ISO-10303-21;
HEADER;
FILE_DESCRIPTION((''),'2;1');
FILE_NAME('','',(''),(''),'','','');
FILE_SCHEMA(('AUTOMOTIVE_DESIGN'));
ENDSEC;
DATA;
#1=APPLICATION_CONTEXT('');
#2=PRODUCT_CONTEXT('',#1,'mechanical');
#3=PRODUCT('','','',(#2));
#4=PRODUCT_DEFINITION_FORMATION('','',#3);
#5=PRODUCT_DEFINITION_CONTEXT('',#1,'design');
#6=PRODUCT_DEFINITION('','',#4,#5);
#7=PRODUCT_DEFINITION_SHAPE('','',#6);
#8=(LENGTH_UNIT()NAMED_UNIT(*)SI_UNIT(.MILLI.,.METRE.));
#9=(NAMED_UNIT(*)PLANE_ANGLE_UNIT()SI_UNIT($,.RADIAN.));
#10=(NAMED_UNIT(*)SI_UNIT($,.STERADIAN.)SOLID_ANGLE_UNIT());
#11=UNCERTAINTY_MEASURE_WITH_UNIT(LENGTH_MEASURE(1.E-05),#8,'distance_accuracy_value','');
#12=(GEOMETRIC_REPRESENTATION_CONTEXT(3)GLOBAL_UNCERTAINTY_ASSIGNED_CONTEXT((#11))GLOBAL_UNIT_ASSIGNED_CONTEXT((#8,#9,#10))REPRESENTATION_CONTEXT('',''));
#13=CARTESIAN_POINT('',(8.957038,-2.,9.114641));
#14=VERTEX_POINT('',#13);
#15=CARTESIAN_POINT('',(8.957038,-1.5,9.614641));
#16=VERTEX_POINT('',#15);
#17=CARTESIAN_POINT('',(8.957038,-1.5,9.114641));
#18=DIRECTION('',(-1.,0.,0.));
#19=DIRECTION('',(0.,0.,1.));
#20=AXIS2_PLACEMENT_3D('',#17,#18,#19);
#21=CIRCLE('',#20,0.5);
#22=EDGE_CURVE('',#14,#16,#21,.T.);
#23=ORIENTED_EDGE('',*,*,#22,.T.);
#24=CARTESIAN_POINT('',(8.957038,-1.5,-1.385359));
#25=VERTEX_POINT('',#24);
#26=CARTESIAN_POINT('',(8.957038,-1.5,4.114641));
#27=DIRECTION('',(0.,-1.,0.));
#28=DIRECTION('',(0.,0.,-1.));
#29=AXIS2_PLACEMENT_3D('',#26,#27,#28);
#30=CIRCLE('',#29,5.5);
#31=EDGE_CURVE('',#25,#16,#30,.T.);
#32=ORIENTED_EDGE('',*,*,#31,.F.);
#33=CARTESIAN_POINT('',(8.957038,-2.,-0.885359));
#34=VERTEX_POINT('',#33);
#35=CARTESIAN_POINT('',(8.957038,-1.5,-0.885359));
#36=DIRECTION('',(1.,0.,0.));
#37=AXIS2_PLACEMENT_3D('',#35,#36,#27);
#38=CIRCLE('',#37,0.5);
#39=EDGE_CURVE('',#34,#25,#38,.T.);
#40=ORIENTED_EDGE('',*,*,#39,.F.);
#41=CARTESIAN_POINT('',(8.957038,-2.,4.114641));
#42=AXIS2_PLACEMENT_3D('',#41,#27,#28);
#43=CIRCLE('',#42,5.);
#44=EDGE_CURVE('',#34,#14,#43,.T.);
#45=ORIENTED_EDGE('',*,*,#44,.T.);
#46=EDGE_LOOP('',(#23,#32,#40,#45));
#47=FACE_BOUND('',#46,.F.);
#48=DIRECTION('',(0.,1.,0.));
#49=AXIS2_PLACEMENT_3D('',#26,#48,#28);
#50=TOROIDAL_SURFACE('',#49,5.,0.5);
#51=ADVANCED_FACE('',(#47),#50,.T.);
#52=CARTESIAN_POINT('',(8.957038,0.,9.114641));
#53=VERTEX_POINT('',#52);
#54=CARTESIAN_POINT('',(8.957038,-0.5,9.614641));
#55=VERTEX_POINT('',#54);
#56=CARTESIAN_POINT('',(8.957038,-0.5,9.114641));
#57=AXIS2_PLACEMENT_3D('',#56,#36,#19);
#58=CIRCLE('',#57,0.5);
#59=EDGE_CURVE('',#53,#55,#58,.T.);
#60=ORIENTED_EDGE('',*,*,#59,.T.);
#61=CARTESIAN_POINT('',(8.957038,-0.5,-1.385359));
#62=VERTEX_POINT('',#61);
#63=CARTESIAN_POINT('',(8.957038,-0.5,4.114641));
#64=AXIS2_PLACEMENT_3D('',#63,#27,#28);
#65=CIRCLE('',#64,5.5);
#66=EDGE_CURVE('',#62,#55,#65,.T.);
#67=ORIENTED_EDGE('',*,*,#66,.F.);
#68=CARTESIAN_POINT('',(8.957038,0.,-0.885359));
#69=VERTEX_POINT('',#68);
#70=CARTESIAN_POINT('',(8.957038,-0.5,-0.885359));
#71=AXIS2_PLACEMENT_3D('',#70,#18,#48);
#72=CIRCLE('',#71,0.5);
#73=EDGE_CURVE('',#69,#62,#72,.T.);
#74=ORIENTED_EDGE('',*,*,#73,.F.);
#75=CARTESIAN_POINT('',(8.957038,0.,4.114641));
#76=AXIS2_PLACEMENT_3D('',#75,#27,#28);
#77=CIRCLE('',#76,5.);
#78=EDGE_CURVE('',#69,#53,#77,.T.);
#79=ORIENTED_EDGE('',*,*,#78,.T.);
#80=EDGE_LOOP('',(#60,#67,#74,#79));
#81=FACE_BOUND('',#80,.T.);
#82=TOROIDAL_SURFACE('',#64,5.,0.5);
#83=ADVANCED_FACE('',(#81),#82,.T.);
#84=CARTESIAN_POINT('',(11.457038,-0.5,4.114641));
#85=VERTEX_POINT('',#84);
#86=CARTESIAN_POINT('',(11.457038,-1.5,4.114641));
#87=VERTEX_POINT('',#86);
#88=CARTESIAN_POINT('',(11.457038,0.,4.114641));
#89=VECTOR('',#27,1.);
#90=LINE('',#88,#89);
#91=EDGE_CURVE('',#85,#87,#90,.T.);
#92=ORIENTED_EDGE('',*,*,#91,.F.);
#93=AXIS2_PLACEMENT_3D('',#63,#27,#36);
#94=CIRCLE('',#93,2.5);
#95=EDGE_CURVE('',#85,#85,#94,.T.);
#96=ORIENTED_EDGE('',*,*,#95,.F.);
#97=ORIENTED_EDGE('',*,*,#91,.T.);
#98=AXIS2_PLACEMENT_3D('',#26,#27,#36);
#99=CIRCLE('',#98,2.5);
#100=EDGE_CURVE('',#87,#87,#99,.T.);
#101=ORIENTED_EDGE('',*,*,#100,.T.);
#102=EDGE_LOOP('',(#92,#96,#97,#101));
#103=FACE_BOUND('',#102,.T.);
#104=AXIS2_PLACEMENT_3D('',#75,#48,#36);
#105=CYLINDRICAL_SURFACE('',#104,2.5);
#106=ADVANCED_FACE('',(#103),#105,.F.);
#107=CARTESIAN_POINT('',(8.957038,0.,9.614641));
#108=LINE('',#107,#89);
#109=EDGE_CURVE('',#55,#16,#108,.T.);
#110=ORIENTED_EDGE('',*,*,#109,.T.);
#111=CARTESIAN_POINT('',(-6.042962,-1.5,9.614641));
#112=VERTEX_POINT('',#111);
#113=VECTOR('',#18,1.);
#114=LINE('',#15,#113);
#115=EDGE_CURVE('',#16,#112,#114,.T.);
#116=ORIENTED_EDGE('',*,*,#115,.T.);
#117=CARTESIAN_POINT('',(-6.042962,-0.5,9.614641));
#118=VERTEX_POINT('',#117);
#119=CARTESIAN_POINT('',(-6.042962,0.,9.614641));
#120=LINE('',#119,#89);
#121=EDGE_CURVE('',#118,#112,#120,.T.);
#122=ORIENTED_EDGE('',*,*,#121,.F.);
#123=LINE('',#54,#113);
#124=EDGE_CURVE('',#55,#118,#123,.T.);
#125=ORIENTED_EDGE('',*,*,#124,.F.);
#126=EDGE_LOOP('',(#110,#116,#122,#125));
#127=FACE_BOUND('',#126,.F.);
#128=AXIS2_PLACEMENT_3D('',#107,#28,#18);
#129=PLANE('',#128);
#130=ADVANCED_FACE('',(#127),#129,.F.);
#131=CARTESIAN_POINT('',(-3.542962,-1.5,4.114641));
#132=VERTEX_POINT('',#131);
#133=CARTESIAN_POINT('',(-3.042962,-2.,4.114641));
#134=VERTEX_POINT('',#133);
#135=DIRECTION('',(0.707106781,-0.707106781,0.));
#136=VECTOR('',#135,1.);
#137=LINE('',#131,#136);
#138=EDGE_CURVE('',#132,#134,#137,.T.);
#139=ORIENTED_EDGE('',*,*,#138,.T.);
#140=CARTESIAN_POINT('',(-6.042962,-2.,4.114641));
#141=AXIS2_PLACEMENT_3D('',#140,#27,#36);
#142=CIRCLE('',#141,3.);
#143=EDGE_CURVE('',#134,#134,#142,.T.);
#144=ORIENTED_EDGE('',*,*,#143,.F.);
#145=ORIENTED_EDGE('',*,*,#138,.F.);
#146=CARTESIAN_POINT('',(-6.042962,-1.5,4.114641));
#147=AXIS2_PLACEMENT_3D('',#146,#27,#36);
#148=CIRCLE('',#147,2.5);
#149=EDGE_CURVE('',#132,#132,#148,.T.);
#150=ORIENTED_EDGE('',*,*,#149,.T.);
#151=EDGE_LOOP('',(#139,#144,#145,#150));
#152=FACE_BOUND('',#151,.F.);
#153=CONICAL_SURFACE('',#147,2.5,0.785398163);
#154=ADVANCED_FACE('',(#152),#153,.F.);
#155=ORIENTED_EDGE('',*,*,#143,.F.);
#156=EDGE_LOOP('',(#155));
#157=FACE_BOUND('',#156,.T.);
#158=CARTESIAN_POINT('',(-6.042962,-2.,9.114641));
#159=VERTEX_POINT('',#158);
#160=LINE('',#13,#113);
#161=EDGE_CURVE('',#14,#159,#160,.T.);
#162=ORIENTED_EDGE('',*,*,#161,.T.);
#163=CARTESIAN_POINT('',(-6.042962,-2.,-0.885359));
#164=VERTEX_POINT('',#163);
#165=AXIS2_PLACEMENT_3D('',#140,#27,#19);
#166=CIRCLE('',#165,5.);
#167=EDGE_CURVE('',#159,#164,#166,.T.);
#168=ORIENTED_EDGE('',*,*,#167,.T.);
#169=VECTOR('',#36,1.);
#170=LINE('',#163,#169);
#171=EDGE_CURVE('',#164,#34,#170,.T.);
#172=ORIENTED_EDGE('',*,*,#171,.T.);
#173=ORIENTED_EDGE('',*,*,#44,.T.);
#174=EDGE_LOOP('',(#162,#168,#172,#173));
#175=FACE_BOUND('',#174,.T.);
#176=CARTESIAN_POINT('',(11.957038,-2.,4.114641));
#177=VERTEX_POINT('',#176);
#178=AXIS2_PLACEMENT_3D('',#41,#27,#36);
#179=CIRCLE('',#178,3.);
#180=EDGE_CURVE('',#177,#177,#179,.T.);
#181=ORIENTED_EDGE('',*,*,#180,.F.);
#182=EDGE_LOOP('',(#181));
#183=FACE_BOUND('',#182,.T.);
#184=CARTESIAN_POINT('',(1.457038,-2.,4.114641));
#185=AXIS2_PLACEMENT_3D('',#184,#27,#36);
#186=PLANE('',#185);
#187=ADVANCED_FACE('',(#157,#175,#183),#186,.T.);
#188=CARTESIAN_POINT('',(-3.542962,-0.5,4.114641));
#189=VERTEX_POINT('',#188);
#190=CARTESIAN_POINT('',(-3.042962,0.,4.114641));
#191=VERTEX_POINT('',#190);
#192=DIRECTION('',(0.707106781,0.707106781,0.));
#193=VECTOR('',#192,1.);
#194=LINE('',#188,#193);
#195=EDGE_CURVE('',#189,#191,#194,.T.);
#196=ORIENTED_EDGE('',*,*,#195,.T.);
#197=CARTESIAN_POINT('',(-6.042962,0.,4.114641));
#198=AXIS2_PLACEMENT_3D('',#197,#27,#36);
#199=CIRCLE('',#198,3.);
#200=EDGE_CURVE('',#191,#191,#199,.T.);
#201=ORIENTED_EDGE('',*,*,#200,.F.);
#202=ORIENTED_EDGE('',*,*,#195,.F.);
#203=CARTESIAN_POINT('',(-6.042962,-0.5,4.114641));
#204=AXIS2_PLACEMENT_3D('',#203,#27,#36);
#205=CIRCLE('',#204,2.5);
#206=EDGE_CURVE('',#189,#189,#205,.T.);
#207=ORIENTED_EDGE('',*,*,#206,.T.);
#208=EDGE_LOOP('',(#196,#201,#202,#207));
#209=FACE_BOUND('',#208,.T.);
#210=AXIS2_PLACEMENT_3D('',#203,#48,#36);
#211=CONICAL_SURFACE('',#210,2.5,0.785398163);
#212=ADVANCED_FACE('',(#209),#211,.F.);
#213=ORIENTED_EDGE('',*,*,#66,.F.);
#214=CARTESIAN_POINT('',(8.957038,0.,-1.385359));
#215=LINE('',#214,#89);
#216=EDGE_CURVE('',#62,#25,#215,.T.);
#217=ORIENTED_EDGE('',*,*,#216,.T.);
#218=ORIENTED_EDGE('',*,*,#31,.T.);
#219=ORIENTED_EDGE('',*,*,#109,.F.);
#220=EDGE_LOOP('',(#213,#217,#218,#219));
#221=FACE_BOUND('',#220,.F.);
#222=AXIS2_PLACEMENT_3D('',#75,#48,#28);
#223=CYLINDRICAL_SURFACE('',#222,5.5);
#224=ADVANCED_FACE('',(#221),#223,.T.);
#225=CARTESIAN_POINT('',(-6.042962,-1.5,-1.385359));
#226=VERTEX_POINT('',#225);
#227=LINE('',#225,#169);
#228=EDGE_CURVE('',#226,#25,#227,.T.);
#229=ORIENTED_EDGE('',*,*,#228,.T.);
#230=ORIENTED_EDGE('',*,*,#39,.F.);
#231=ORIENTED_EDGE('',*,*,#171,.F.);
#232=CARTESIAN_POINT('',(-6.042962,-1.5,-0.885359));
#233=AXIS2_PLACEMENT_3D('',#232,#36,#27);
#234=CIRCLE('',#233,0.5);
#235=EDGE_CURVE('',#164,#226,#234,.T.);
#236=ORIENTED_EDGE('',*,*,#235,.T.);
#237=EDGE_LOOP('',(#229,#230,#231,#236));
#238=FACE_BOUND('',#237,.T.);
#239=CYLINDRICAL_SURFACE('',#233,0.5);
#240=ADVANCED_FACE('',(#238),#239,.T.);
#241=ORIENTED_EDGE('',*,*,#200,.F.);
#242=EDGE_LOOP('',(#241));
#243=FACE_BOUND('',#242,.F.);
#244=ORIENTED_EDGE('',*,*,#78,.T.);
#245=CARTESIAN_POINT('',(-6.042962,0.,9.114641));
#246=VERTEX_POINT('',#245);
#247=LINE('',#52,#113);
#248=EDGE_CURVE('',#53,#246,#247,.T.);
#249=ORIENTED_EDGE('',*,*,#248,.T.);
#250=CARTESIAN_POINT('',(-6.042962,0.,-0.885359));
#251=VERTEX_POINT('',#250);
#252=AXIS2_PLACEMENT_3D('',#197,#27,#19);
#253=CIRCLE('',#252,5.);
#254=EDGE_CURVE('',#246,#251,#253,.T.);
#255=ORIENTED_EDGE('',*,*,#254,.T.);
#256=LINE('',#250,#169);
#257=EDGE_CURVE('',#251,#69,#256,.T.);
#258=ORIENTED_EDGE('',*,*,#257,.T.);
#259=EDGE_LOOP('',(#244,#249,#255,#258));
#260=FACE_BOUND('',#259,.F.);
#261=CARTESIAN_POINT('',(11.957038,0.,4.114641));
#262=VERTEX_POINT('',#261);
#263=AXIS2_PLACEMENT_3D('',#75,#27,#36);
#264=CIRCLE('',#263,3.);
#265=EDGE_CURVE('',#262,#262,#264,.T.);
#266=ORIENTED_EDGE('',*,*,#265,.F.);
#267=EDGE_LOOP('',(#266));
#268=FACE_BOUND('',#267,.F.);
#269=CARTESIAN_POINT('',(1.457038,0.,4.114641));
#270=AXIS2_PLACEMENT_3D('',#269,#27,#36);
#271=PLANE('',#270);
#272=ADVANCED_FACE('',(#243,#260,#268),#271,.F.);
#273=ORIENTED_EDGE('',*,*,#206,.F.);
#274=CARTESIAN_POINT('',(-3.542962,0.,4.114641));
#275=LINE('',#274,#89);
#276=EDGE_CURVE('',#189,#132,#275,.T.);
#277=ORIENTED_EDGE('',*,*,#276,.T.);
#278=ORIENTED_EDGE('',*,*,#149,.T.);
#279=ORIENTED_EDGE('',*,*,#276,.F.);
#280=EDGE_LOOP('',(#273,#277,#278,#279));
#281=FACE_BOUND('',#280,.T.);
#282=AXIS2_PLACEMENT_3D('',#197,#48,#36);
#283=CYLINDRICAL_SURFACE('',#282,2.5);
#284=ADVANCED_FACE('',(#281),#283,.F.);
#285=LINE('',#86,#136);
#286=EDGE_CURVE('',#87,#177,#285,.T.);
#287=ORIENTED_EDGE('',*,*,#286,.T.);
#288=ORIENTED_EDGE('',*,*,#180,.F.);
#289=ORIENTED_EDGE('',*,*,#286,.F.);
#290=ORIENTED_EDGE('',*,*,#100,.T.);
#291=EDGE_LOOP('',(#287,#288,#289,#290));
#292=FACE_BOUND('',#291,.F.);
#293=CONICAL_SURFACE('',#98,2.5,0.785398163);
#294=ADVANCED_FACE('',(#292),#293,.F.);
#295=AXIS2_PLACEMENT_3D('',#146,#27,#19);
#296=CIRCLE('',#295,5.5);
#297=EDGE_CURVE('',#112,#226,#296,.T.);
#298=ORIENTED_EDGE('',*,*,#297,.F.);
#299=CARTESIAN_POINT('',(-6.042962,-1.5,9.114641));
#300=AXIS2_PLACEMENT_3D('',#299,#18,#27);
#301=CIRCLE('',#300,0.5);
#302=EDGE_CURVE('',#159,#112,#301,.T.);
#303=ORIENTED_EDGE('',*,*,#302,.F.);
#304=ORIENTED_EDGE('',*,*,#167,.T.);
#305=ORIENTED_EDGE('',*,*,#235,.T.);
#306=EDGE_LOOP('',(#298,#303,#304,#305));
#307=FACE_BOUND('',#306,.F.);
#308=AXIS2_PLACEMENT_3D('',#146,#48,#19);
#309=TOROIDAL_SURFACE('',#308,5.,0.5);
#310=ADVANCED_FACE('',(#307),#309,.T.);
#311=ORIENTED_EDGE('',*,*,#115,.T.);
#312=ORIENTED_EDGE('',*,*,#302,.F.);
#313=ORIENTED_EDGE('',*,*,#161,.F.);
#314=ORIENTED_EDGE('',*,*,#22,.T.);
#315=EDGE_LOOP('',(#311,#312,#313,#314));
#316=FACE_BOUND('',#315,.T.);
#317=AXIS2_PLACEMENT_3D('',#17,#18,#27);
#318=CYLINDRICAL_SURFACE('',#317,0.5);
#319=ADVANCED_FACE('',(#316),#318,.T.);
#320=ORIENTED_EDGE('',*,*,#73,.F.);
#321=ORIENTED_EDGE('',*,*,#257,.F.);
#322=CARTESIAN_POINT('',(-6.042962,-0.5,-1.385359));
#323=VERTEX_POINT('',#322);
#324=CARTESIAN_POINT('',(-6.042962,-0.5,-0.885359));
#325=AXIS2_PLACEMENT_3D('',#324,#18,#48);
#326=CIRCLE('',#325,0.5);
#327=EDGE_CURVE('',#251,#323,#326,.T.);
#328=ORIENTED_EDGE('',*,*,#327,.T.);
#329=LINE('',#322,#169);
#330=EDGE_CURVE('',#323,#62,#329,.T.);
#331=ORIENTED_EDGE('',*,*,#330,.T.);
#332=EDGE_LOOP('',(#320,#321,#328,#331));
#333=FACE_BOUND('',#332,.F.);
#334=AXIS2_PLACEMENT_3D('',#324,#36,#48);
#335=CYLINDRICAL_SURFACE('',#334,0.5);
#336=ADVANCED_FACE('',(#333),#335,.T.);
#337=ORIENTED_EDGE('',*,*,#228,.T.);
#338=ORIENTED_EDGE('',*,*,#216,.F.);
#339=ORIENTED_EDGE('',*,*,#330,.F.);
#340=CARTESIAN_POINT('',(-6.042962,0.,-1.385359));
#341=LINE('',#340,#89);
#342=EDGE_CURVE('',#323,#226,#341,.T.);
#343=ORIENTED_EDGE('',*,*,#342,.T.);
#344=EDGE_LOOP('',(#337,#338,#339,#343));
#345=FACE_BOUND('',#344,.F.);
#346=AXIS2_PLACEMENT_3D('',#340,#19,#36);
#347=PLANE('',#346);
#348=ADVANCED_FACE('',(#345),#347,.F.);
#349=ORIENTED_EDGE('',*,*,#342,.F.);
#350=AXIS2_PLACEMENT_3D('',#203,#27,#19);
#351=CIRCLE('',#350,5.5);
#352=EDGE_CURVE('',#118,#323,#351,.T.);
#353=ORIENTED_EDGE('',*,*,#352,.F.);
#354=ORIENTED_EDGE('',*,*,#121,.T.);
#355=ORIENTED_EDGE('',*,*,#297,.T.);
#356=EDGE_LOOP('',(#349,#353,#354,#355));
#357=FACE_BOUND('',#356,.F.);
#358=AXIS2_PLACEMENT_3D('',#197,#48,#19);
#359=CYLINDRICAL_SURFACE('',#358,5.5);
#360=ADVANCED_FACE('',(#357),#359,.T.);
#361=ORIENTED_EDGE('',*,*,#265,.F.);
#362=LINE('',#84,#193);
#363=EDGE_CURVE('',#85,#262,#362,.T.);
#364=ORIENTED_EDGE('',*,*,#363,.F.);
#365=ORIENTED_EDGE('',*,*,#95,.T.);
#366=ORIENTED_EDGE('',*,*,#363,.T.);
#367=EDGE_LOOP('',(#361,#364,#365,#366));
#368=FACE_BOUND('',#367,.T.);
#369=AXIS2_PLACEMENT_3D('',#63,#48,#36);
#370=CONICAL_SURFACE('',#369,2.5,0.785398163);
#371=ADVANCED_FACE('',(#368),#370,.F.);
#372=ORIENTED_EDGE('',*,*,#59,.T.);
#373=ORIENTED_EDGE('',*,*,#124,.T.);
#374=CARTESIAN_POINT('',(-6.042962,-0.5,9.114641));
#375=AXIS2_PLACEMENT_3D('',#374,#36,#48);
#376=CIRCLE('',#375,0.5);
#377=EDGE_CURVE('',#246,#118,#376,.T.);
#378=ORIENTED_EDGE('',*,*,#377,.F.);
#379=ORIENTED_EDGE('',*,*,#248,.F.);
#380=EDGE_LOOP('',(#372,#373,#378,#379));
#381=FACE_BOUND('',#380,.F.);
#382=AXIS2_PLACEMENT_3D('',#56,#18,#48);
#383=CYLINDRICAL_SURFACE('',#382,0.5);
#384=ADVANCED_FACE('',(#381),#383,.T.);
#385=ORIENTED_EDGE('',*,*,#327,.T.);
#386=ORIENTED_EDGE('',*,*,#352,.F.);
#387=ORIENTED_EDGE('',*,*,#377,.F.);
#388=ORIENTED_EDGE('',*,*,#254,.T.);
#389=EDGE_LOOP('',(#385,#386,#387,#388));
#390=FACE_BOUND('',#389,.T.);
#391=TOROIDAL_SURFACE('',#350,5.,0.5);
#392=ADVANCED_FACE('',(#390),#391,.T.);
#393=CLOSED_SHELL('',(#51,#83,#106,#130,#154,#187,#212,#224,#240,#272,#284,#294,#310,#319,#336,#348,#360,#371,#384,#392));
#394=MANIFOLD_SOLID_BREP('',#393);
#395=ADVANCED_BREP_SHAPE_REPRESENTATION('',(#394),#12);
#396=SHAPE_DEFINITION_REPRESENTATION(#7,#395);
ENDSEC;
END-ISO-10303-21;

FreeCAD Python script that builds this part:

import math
import FreeCAD as App
import Part
import Sketcher

V = App.Vector
Q = App.Units.Quantity


def edges_at(feature, points):
    """Names of the edges that pass closest to the given points."""
    edges = feature.Shape.Edges
    near = lambda p: min(range(len(edges)), key=lambda i: edges[i].distToShape(Part.Vertex(*p))[0])
    return sorted({f"Edge{near(p) + 1}" for p in points})

doc = App.newDocument("Part")
body = doc.addObject("PartDesign::Body", "Body")

# Sketch on XZ plane
sketch1 = body.newObject("Sketcher::SketchObject", "Sketch")
sketch1.AttachmentSupport = (doc.getObject("XZ_Plane"), [""])
sketch1.MapMode = "FlatFace"
sketch1.addGeometry([
    Part.LineSegment(V(9, 9.6, 0), V(-6, 9.6, 0)),  # 0
    Part.ArcOfCircle(Part.Circle(V(-6, 4.1, 0), V(0, 0, 1), 5.5), math.radians(90), math.radians(270)),  # 1
    Part.LineSegment(V(-6, -1.4, 0), V(9, -1.4, 0)),  # 2
    Part.ArcOfCircle(Part.Circle(V(9, 4.1, 0), V(0, 0, 1), 5.5), math.radians(-90), math.radians(90)),  # 3
    Part.Circle(V(-6, 4.1, 0), V(0, 0, 1), 2.5),  # 4
    Part.Circle(V(9, 4.1, 0), V(0, 0, 1), 2.5),  # 5
], False)
sketch1.addConstraint([
    Sketcher.Constraint("Tangent", 0, 2, 1, 1),
    Sketcher.Constraint("Tangent", 1, 2, 2, 1),
    Sketcher.Constraint("Tangent", 2, 2, 3, 1),
    Sketcher.Constraint("Tangent", 3, 2, 0, 1),
    Sketcher.Constraint("Horizontal", 0),
    Sketcher.Constraint("Horizontal", 2),
    Sketcher.Constraint("Coincident", 4, 3, 1, 3),
    Sketcher.Constraint("Coincident", 5, 3, 3, 3),
    Sketcher.Constraint("Equal", 4, 5),
    Sketcher.Constraint("Diameter", 4, Q("5 mm")),
    Sketcher.Constraint("Radius", 1, Q("5.5 mm")),
    Sketcher.Constraint("DistanceX", 0, 2, 0, 1, Q("15 mm")),
    Sketcher.Constraint("DistanceY", -1, 1, 1, 3, Q("4.114641 mm")),
    Sketcher.Constraint("DistanceX", -1, 1, 3, 3, Q("8.957038 mm")),
])
pad1 = body.newObject("PartDesign::Pad", "Pad")
pad1.Profile = sketch1
pad1.Length = 2
doc.recompute()

chamfer = body.newObject("PartDesign::Chamfer", "Chamfer")
chamfer.Base = (pad1, edges_at(pad1, [
    (-8.543, -2, 4.115),
    (6.457, -2, 4.115),
    (-8.543, 0, 4.115),
    (6.457, 0, 4.115),
]))
chamfer.Size = 0.5
doc.recompute()

fillet = body.newObject("PartDesign::Fillet", "Fillet")
fillet.Base = (chamfer, edges_at(chamfer, [(1.457, -2, -1.385), (1.457, 0, -1.385)]))
fillet.Radius = 0.5

doc.recompute()
